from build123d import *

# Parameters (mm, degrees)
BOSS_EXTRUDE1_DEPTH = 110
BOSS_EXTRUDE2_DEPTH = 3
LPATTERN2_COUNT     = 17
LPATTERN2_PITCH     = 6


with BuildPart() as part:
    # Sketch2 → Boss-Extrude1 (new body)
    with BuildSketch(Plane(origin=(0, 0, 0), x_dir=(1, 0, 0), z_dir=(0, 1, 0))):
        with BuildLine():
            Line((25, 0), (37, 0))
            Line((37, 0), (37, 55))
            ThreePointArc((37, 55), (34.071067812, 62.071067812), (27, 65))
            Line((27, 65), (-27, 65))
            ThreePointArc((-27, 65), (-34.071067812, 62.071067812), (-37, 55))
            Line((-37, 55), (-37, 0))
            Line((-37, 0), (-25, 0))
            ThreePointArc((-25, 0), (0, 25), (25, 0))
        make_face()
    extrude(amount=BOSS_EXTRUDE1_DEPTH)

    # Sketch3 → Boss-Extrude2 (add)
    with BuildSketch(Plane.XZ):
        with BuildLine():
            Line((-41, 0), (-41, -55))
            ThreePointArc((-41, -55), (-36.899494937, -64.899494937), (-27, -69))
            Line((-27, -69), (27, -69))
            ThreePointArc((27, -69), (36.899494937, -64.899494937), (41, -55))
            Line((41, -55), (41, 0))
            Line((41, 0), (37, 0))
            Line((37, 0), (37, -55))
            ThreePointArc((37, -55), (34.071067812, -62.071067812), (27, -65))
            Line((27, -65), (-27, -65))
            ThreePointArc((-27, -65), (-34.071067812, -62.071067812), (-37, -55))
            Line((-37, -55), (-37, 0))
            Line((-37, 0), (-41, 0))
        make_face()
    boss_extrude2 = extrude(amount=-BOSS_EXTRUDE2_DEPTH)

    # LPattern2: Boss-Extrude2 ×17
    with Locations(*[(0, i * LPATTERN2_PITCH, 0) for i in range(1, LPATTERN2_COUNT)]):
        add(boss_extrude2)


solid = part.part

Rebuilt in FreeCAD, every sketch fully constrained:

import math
import FreeCAD as App
import Part
import Sketcher
Q = App.Units.Quantity

doc = App.newDocument("Part")
body = doc.addObject("PartDesign::Body", "Body")

sketch1 = doc.addObject("Sketcher::SketchObject", "Sketch")
body.addObject(sketch1)
sketch1.AttachmentSupport = (doc.XZ_Plane, [""])
sketch1.MapMode = "FlatFace"
sketch1.addGeometry(Part.LineSegment(App.Vector(25, 0, 0), App.Vector(37, 0, 0)), False)
sketch1.addGeometry(Part.LineSegment(App.Vector(37, 0, 0), App.Vector(37, -55, 0)), False)
sketch1.addGeometry(Part.ArcOfCircle(Part.Circle(App.Vector(27, -55, 0), App.Vector(0, 0, 1), 10), math.radians(-90), math.radians(0)), False)
sketch1.addGeometry(Part.LineSegment(App.Vector(27, -65, 0), App.Vector(-27, -65, 0)), False)
sketch1.addGeometry(Part.ArcOfCircle(Part.Circle(App.Vector(-27, -55, 0), App.Vector(0, 0, 1), 10), math.radians(180), math.radians(270)), False)
sketch1.addGeometry(Part.LineSegment(App.Vector(-37, -55, 0), App.Vector(-37, 0, 0)), False)
sketch1.addGeometry(Part.LineSegment(App.Vector(-37, 0, 0), App.Vector(-25, 0, 0)), False)
sketch1.addGeometry(Part.ArcOfCircle(Part.Circle(App.Vector(0, 0, 0), App.Vector(0, 0, 1), 25), math.radians(180), math.radians(360)), False)
sketch1.addConstraint(Sketcher.Constraint("Coincident", 0, 2, 1, 1))
sketch1.addConstraint(Sketcher.Constraint("Tangent", 1, 2, 2, 2))
sketch1.addConstraint(Sketcher.Constraint("Tangent", 2, 1, 3, 1))
sketch1.addConstraint(Sketcher.Constraint("Tangent", 3, 2, 4, 2))
sketch1.addConstraint(Sketcher.Constraint("Tangent", 4, 1, 5, 1))
sketch1.addConstraint(Sketcher.Constraint("Coincident", 5, 2, 6, 1))
sketch1.addConstraint(Sketcher.Constraint("Coincident", 6, 2, 7, 1))
sketch1.addConstraint(Sketcher.Constraint("Coincident", 7, 2, 0, 1))
sketch1.addConstraint(Sketcher.Constraint("Horizontal", 0))
sketch1.addConstraint(Sketcher.Constraint("Vertical", 1))
sketch1.addConstraint(Sketcher.Constraint("Horizontal", 3))
sketch1.addConstraint(Sketcher.Constraint("Vertical", 5))
sketch1.addConstraint(Sketcher.Constraint("Horizontal", 6))
sketch1.addConstraint(Sketcher.Constraint("Coincident", 7, 3, -1, 1))
sketch1.addConstraint(Sketcher.Constraint("Equal", 2, 4))
sketch1.addConstraint(Sketcher.Constraint("Symmetric", 0, 2, 5, 2, -1, 1))
sketch1.addConstraint(Sketcher.Constraint("PointOnObject", 0, 2, -1))
sketch1.addConstraint(Sketcher.Constraint("Radius", 2, Q("10 mm")))
sketch1.addConstraint(Sketcher.Constraint("Radius", 7, Q("25 mm")))
sketch1.addConstraint(Sketcher.Constraint("DistanceX", 0, 1, 0, 2, Q("12 mm")))
sketch1.addConstraint(Sketcher.Constraint("DistanceY", 1, 2, 1, 1, Q("55 mm")))
pad1 = doc.addObject("PartDesign::Pad", "Pad")
body.addObject(pad1)
pad1.Profile = sketch1
pad1.Length = 110
pad1.Reversed = True

sketch2 = doc.addObject("Sketcher::SketchObject", "Sketch001")
body.addObject(sketch2)
sketch2.AttachmentSupport = (doc.XZ_Plane, [""])
sketch2.MapMode = "FlatFace"
sketch2.addGeometry(Part.LineSegment(App.Vector(-41, 0, 0), App.Vector(-41, -55, 0)), False)
sketch2.addGeometry(Part.ArcOfCircle(Part.Circle(App.Vector(-27, -55, 0), App.Vector(0, 0, 1), 14), math.radians(180), math.radians(270)), False)
sketch2.addGeometry(Part.LineSegment(App.Vector(-27, -69, 0), App.Vector(27, -69, 0)), False)
sketch2.addGeometry(Part.ArcOfCircle(Part.Circle(App.Vector(27, -55, 0), App.Vector(0, 0, 1), 14), math.radians(-90), math.radians(0)), False)
sketch2.addGeometry(Part.LineSegment(App.Vector(41, -55, 0), App.Vector(41, 0, 0)), False)
sketch2.addGeometry(Part.LineSegment(App.Vector(41, 0, 0), App.Vector(37, 0, 0)), False)
sketch2.addGeometry(Part.LineSegment(App.Vector(37, 0, 0), App.Vector(37, -55, 0)), False)
sketch2.addGeometry(Part.ArcOfCircle(Part.Circle(App.Vector(27, -55, 0), App.Vector(0, 0, 1), 10), math.radians(-90), math.radians(0)), False)
sketch2.addGeometry(Part.LineSegment(App.Vector(27, -65, 0), App.Vector(-27, -65, 0)), False)
sketch2.addGeometry(Part.ArcOfCircle(Part.Circle(App.Vector(-27, -55, 0), App.Vector(0, 0, 1), 10), math.radians(180), math.radians(270)), False)
sketch2.addGeometry(Part.LineSegment(App.Vector(-37, -55, 0), App.Vector(-37, 0, 0)), False)
sketch2.addGeometry(Part.LineSegment(App.Vector(-37, 0, 0), App.Vector(-41, 0, 0)), False)
sketch2.addConstraint(Sketcher.Constraint("Tangent", 0, 2, 1, 1))
sketch2.addConstraint(Sketcher.Constraint("Tangent", 1, 2, 2, 1))
sketch2.addConstraint(Sketcher.Constraint("Tangent", 2, 2, 3, 1))
sketch2.addConstraint(Sketcher.Constraint("Tangent", 3, 2, 4, 1))
sketch2.addConstraint(Sketcher.Constraint("Coincident", 4, 2, 5, 1))
sketch2.addConstraint(Sketcher.Constraint("Coincident", 5, 2, 6, 1))
sketch2.addConstraint(Sketcher.Constraint("Tangent", 6, 2, 7, 2))
sketch2.addConstraint(Sketcher.Constraint("Tangent", 7, 1, 8, 1))
sketch2.addConstraint(Sketcher.Constraint("Tangent", 8, 2, 9, 2))
sketch2.addConstraint(Sketcher.Constraint("Tangent", 9, 1, 10, 1))
sketch2.addConstraint(Sketcher.Constraint("Coincident", 10, 2, 11, 1))
sketch2.addConstraint(Sketcher.Constraint("Coincident", 11, 2, 0, 1))
sketch2.addConstraint(Sketcher.Constraint("Vertical", 0))
sketch2.addConstraint(Sketcher.Constraint("Horizontal", 2))
sketch2.addConstraint(Sketcher.Constraint("Vertical", 4))
sketch2.addConstraint(Sketcher.Constraint("Horizontal", 5))
sketch2.addConstraint(Sketcher.Constraint("Vertical", 6))
sketch2.addConstraint(Sketcher.Constraint("Horizontal", 8))
sketch2.addConstraint(Sketcher.Constraint("Vertical", 10))
sketch2.addConstraint(Sketcher.Constraint("Horizontal", 11))
sketch2.addConstraint(Sketcher.Constraint("Coincident", 7, 3, 3, 3))
sketch2.addConstraint(Sketcher.Constraint("Coincident", 9, 3, 1, 3))
sketch2.addConstraint(Sketcher.Constraint("Equal", 1, 3))
sketch2.addConstraint(Sketcher.Constraint("Symmetric", 5, 2, 10, 2, -1, 1))
sketch2.addConstraint(Sketcher.Constraint("PointOnObject", 4, 2, -1))
sketch2.addConstraint(Sketcher.Constraint("Radius", 1, Q("14 mm")))
sketch2.addConstraint(Sketcher.Constraint("Radius", 7, Q("10 mm")))
sketch2.addConstraint(Sketcher.Constraint("DistanceX", 2, 1, 2, 2, Q("54 mm")))
sketch2.addConstraint(Sketcher.Constraint("DistanceY", 0, 2, 0, 1, Q("55 mm")))
pad2 = doc.addObject("PartDesign::Pad", "Pad001")
body.addObject(pad2)
pad2.Profile = sketch2
pad2.Length = 3
pad2.Reversed = True
doc.recompute()

linearpattern = doc.addObject("PartDesign::LinearPattern", "LinearPattern")
body.addObject(linearpattern)
linearpattern.Originals = [pad2]
linearpattern.Direction = (doc.Y_Axis, [""])
linearpattern.Mode = "offset"
linearpattern.Offset = 6
linearpattern.Occurrences = 17
body.Tip = linearpattern

doc.recompute()
